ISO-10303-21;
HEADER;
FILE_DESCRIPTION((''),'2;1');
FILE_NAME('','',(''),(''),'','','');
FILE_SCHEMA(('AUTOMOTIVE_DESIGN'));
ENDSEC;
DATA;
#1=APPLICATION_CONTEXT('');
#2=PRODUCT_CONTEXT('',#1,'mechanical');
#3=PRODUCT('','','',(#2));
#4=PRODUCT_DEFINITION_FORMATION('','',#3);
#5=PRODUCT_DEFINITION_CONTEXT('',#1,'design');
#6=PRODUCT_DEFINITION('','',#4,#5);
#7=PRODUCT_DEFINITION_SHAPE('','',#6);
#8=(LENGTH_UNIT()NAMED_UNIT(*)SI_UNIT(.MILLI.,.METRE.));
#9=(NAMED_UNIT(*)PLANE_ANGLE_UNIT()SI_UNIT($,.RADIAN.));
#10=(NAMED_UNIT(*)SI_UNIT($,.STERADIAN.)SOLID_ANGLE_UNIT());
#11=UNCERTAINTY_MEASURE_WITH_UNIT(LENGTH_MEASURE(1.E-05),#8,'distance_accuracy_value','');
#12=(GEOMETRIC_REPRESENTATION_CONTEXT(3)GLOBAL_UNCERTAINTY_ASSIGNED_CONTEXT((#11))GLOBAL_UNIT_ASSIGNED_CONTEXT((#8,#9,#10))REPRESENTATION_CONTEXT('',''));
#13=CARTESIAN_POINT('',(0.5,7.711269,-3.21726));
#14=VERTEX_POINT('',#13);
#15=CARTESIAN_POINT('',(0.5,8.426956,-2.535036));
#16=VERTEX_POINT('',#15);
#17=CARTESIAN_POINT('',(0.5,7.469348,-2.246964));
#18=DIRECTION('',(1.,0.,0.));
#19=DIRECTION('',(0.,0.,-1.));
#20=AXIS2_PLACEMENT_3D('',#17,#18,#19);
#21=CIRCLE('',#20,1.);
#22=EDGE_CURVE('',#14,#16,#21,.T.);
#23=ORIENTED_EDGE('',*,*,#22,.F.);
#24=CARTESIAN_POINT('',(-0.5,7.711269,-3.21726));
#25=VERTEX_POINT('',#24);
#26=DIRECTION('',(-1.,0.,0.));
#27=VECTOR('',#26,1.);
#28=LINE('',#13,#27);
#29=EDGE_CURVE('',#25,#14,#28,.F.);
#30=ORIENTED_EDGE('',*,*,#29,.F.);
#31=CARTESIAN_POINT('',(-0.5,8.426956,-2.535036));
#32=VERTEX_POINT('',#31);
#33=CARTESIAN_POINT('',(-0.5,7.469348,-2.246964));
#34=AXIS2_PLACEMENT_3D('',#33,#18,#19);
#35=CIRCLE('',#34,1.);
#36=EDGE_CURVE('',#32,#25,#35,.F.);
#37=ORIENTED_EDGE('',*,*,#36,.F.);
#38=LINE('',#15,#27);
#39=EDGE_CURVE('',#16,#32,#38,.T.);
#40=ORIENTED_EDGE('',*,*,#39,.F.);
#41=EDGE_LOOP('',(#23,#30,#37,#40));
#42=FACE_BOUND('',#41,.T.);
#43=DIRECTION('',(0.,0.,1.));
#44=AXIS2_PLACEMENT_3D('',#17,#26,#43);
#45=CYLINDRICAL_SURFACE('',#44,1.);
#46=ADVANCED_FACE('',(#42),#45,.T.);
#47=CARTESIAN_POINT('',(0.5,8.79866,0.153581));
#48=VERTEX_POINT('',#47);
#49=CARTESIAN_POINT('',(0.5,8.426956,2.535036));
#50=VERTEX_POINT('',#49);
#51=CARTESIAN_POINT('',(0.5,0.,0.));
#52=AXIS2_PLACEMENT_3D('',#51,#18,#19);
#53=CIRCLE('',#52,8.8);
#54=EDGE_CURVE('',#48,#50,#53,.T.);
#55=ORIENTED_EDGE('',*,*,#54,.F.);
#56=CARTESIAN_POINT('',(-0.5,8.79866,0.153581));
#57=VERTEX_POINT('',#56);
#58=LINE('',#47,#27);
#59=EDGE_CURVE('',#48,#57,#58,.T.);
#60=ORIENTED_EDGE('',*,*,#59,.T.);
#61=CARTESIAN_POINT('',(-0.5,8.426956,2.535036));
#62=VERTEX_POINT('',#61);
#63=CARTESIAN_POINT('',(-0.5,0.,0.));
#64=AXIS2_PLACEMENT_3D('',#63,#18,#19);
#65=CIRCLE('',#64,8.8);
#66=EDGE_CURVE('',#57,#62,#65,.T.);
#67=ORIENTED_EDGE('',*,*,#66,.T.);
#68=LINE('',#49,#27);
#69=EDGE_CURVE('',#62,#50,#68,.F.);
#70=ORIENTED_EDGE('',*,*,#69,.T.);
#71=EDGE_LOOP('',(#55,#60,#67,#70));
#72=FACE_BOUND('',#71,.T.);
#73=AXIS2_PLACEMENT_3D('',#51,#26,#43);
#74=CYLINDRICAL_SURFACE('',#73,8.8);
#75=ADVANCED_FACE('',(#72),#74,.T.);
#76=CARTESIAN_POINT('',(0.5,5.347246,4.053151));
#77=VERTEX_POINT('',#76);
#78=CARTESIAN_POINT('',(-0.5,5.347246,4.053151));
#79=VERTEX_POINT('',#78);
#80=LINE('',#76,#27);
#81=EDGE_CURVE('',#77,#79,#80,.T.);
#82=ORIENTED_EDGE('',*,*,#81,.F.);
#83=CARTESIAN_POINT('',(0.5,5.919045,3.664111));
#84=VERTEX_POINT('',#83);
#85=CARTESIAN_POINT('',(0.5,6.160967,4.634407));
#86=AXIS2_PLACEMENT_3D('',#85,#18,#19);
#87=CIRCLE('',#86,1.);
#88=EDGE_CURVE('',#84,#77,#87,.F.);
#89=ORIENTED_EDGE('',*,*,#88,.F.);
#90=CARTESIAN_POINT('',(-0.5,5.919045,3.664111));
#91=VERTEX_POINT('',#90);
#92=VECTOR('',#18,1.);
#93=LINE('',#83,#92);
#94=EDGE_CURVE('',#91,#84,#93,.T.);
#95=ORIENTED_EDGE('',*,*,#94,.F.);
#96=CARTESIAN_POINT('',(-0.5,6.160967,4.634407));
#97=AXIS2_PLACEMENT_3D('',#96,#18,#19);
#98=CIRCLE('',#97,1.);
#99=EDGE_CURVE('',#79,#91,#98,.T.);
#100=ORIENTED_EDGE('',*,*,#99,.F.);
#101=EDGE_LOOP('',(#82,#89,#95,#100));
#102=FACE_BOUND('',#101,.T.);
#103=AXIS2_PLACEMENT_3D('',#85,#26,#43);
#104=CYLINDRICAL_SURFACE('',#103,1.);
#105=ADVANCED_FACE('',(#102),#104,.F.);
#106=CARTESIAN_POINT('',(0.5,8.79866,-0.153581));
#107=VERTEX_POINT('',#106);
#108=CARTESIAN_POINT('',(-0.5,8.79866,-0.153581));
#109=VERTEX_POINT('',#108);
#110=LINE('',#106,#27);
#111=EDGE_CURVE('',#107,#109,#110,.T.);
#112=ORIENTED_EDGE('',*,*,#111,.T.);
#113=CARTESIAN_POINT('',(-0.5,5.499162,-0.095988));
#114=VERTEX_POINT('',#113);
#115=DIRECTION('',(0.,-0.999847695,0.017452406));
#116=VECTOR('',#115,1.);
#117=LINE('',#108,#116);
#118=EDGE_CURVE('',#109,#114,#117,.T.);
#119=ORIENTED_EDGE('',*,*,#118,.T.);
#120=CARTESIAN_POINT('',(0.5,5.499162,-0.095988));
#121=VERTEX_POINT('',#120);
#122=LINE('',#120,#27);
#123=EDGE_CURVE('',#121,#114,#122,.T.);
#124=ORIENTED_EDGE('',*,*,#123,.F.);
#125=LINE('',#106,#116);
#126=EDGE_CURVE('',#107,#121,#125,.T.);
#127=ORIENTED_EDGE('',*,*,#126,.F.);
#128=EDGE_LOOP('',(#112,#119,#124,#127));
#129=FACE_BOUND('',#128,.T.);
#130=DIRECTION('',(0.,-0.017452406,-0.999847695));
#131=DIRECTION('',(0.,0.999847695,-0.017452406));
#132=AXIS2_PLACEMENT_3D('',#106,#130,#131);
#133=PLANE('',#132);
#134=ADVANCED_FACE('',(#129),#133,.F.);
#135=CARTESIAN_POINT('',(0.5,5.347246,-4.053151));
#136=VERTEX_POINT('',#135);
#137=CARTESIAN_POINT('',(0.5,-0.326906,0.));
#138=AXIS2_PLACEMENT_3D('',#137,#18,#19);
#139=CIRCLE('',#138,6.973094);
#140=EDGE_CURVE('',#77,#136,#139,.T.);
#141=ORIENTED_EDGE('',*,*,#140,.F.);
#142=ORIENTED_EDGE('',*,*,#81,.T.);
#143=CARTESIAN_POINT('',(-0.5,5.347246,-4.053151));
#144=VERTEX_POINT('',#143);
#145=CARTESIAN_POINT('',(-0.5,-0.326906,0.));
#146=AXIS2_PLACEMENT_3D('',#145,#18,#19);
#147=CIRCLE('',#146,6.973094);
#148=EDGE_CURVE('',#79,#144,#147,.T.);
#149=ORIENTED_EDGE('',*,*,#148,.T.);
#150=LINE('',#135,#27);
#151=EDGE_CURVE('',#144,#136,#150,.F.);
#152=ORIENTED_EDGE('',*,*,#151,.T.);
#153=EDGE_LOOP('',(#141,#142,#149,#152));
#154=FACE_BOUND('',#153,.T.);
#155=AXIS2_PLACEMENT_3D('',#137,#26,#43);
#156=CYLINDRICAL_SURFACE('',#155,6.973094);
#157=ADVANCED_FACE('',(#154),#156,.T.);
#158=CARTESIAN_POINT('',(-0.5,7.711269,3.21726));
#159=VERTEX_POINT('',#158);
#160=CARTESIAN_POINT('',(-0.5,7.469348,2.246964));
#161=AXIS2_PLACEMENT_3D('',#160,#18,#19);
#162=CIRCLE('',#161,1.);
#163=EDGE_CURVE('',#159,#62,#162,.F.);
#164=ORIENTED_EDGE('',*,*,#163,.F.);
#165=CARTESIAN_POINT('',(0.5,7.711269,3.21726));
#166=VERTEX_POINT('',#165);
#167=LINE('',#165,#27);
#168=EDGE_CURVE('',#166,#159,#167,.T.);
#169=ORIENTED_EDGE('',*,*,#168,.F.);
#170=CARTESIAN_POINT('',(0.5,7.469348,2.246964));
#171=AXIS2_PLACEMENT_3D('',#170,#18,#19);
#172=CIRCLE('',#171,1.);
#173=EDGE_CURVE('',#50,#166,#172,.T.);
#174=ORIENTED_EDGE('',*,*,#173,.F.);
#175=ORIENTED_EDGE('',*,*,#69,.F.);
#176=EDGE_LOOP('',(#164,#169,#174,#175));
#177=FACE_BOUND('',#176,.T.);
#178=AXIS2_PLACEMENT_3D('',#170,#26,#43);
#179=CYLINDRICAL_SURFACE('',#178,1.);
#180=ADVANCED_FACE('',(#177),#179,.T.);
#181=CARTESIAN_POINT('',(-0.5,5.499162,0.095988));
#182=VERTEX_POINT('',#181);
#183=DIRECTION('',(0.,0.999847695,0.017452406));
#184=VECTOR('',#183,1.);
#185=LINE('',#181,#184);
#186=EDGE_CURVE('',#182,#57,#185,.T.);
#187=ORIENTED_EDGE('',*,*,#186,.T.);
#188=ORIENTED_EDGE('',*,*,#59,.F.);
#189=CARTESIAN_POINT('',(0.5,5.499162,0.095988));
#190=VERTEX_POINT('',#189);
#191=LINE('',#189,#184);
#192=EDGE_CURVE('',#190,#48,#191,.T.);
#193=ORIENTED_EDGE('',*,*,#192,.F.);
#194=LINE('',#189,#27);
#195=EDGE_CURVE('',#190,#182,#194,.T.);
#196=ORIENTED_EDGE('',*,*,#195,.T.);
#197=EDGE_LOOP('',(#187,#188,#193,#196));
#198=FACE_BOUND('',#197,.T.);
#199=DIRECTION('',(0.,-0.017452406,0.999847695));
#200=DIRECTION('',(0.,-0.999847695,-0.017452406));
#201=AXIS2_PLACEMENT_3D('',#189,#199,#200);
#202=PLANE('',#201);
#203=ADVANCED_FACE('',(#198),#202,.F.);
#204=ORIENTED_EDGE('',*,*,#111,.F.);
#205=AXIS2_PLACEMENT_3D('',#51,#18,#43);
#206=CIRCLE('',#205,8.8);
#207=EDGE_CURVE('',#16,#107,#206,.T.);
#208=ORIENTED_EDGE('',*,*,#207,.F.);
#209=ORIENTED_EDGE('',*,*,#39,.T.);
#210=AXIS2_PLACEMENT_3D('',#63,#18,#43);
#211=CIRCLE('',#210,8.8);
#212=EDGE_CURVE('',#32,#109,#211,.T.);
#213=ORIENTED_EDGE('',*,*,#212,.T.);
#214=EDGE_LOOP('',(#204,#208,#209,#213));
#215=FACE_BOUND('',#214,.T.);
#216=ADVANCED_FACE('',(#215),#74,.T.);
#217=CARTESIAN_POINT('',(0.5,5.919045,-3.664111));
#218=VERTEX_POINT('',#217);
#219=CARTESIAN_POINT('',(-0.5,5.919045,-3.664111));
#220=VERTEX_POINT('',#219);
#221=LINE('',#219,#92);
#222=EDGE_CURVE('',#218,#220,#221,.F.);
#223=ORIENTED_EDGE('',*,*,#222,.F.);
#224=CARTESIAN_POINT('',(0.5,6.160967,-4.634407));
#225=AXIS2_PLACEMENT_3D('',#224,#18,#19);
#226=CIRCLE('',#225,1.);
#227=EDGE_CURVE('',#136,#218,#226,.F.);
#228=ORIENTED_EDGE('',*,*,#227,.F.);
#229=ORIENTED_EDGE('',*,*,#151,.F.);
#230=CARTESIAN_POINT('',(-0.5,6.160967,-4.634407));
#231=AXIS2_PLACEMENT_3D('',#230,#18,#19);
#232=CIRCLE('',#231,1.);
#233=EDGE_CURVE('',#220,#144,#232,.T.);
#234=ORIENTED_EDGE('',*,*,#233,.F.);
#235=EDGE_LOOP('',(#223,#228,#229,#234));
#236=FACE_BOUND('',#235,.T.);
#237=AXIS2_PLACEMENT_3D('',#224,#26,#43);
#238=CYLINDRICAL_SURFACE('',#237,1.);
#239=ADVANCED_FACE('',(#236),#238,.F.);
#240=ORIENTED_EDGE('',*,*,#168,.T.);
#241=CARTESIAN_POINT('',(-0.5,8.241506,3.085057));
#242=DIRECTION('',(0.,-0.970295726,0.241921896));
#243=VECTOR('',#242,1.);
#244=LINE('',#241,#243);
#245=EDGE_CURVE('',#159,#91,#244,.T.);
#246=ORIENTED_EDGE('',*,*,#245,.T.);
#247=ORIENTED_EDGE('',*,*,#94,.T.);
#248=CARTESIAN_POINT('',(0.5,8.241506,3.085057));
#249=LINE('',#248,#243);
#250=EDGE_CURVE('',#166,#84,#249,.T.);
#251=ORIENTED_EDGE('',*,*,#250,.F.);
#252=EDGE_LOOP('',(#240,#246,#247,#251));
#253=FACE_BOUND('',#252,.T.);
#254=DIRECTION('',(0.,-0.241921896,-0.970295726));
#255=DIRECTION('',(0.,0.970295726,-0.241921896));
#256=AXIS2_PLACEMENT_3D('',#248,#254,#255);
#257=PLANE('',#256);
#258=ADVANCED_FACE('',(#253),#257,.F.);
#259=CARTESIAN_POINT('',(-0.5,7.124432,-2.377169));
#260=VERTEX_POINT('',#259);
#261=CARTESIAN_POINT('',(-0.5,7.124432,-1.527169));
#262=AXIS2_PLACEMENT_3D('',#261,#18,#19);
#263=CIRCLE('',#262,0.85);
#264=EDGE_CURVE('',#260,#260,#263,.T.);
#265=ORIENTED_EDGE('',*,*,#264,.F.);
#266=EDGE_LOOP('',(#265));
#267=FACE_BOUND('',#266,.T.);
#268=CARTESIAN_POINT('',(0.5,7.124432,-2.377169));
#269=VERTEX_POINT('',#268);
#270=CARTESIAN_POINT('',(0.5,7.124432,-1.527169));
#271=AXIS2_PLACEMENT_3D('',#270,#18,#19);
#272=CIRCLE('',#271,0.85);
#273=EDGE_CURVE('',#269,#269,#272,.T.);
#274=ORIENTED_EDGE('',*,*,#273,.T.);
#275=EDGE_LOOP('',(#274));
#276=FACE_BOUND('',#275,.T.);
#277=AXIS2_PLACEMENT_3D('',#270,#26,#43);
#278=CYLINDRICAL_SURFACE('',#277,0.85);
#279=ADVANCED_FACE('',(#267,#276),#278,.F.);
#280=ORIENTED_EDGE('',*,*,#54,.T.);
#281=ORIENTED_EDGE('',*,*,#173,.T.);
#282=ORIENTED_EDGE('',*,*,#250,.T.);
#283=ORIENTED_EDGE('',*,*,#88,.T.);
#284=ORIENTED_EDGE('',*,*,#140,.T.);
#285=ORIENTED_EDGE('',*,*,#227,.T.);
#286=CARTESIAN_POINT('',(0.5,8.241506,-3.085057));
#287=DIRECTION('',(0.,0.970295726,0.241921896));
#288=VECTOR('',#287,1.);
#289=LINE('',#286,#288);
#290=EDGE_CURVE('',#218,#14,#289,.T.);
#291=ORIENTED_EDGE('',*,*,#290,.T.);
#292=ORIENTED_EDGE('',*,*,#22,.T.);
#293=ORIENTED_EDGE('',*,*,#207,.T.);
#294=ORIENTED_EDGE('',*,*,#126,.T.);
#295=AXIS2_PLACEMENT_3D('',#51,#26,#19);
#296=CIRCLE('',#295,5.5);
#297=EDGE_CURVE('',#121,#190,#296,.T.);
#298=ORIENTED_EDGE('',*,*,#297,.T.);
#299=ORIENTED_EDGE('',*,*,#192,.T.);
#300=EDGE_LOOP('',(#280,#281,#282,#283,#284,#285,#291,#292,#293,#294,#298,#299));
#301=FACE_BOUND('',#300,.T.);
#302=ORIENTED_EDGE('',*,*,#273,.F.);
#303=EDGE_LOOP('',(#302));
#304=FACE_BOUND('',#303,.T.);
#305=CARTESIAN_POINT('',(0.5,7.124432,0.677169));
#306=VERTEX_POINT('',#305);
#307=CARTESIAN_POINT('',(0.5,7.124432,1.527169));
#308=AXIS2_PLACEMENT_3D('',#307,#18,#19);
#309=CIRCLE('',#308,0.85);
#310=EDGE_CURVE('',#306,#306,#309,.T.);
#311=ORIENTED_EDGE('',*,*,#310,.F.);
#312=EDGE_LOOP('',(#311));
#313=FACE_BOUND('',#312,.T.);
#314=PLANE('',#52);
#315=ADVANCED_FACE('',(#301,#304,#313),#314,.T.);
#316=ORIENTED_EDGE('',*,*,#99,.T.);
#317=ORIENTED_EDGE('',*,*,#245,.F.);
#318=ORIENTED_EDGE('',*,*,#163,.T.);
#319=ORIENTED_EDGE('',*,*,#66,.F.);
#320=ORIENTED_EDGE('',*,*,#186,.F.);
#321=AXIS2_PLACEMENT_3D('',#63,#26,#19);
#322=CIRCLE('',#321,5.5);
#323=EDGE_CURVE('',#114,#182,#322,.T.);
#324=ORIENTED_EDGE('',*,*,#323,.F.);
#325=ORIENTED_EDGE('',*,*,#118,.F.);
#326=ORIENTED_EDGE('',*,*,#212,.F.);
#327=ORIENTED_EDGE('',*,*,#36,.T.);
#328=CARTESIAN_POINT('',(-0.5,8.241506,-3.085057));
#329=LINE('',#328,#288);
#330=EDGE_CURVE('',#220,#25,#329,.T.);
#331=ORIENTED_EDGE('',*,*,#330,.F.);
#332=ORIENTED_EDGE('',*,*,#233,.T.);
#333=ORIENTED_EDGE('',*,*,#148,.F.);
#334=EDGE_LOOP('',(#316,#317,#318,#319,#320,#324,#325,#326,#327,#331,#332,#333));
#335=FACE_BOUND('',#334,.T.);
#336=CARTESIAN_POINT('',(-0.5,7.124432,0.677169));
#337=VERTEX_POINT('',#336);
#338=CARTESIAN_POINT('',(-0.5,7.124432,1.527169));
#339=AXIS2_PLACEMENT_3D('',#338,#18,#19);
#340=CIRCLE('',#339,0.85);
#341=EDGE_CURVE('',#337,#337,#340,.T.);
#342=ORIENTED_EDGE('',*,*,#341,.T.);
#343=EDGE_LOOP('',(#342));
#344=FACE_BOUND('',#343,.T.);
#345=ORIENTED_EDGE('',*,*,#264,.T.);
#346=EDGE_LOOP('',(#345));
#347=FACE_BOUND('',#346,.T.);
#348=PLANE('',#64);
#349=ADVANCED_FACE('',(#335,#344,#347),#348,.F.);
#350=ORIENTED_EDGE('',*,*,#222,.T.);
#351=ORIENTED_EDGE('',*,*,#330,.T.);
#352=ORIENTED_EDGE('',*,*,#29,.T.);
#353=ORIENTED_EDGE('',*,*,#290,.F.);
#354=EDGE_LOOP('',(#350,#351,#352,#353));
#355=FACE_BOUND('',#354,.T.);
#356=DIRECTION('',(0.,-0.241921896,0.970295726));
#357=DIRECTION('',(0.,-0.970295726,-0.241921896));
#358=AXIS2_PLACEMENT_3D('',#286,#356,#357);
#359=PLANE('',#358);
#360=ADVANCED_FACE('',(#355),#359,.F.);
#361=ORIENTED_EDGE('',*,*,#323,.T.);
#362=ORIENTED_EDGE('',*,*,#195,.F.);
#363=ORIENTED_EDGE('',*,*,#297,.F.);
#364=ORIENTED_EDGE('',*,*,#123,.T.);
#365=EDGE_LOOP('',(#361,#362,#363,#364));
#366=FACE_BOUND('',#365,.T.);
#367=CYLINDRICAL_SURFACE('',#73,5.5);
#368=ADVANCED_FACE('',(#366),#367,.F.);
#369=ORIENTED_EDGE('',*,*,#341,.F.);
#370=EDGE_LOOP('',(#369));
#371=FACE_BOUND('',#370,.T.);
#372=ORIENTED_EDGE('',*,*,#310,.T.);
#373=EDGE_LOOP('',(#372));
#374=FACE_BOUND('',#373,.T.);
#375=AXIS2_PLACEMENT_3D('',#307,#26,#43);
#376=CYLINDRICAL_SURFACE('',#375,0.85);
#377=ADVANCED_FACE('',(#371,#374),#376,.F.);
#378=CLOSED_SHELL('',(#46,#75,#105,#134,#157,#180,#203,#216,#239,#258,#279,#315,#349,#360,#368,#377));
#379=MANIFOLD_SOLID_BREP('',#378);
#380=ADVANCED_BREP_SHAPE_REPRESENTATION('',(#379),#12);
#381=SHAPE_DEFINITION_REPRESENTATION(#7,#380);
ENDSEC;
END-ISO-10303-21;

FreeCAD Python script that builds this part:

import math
import FreeCAD as App
import Part
import Sketcher
from FreeCAD import Vector
Q = App.Units.Quantity


def edges_at(feature, points):
    """Names of the edges that pass closest to the given points."""
    edges = feature.Shape.Edges
    near = lambda p: min(range(len(edges)), key=lambda i: edges[i].distToShape(Part.Vertex(*p))[0])
    return sorted({f"Edge{near(p) + 1}" for p in points})

doc = App.newDocument("Part")
body = doc.addObject("PartDesign::Body", "Body")

# Sketch on YZ plane
sketch1 = body.newObject("Sketcher::SketchObject", "Sketch")
sketch1.AttachmentSupport = (doc.getObject("YZ_Plane"), [""])
sketch1.MapMode = "FlatFace"
sketch1.addGeometry([
    Part.LineSegment(Vector(5.499162, 0.095988, 0), Vector(8.79866, 0.153581, 0)),  # 0
    Part.ArcOfCircle(Part.Circle(Vector(0, 0, 0), Vector(0, 0, 1), 8.8), math.radians(1), math.radians(20.522467)),  # 1
    Part.LineSegment(Vector(8.241506, 3.085057, 0), Vector(5.547726, 3.756692, 0)),  # 2
    Part.ArcOfCircle(Part.Circle(Vector(-0.326906, 0, 0), Vector(0, 0, 1), 6.973094), math.radians(32.597974), math.radians(327.402026)),  # 3
    Part.LineSegment(Vector(5.547726, -3.756692, 0), Vector(8.241506, -3.085057, 0)),  # 4
    Part.ArcOfCircle(Part.Circle(Vector(0, 0, 0), Vector(0, 0, 1), 8.8), math.radians(-20.522467), math.radians(-1)),  # 5
    Part.LineSegment(Vector(8.79866, -0.153581, 0), Vector(5.499162, -0.095988, 0)),  # 6
    Part.ArcOfCircle(Part.Circle(Vector(0, 0, 0), Vector(0, 0, 1), 5.5), math.radians(1), math.radians(359)),  # 7
    Part.Circle(Vector(7.124432, 1.527169, 0), Vector(0, 0, 1), 0.85),  # 8
    Part.Circle(Vector(7.124432, -1.527169, 0), Vector(0, 0, 1), 0.85),  # 9
], False)
sketch1.addConstraint([
    Sketcher.Constraint("Coincident", 0, 2, 1, 1),
    Sketcher.Constraint("Coincident", 1, 2, 2, 1),
    Sketcher.Constraint("Coincident", 2, 2, 3, 1),
    Sketcher.Constraint("Coincident", 3, 2, 4, 1),
    Sketcher.Constraint("Coincident", 4, 2, 5, 1),
    Sketcher.Constraint("Coincident", 5, 2, 6, 1),
    Sketcher.Constraint("Coincident", 6, 2, 7, 2),
    Sketcher.Constraint("Coincident", 7, 1, 0, 1),
    Sketcher.Constraint("Coincident", 1, 3, -1, 1),
    Sketcher.Constraint("Coincident", 5, 3, -1, 1),
    Sketcher.Constraint("Coincident", 7, 3, -1, 1),
    Sketcher.Constraint("Equal", 1, 5),
    Sketcher.Constraint("Equal", 8, 9),
    Sketcher.Constraint("Symmetric", 8, 3, 9, 3, -1),
    Sketcher.Constraint("Symmetric", 2, 2, 3, 2, -1),
    Sketcher.Constraint("Vertical", 1, 2, 4, 2),
    Sketcher.Constraint("Vertical", 0, 2, 5, 2),
    Sketcher.Constraint("Vertical", 6, 2, 7, 1),
    Sketcher.Constraint("Diameter", 8, 1.7),
    Sketcher.Constraint("Radius", 1, 8.8),
    Sketcher.Constraint("Radius", 7, 5.5),
    Sketcher.Constraint("Angle", 0, Q("1 deg")),
    Sketcher.Constraint("Angle", 2, Q("166 deg")),
    Sketcher.Constraint("Radius", 3, 6.973094),
    Sketcher.Constraint("DistanceY", -1, 1, 8, 3, 1.527169),
    Sketcher.Constraint("DistanceX", -1, 1, 0, 2, 8.79866),
    Sketcher.Constraint("DistanceY", -1, 1, 2, 2, 3.756692),
    Sketcher.Constraint("DistanceX", 3, 3, 8, 3, 7.451338),
    Sketcher.Constraint("DistanceY", 8, 3, 1, 2, 1.557888),
])
pad1 = body.newObject("PartDesign::Pad", "Pad")
pad1.Profile = sketch1
pad1.Length = 1
pad1.Midplane = True
doc.recompute()

fillet = body.newObject("PartDesign::Fillet", "Fillet")
fillet.Base = (pad1, edges_at(pad1, [
    (0, 8.242, -3.085),
    (0, 5.548, -3.757),
    (0, 5.548, 3.757),
    (0, 8.242, 3.085),
]))
fillet.Radius = 1

doc.recompute()
